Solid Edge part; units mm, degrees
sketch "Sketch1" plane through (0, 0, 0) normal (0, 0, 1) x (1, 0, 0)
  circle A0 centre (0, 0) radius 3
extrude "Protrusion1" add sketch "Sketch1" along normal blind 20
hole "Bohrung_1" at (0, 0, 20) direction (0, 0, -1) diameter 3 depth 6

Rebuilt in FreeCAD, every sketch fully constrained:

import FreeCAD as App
import Part
import Sketcher

doc = App.newDocument("Part")
body = doc.addObject("PartDesign::Body", "Body")

# Sketch on XY plane
sketch1 = body.newObject("Sketcher::SketchObject", "Sketch")
sketch1.AttachmentSupport = (doc.getObject("XY_Plane"), [""])
sketch1.MapMode = "FlatFace"
sketch1.addGeometry(Part.Circle(App.Vector(0, 0, 0), App.Vector(0, 0, 1), 3), False)
sketch1.addConstraint([
    Sketcher.Constraint("Coincident", 0, 3, -1, 1),
    Sketcher.Constraint("Diameter", 0, 6.0),
])
pad1 = body.newObject("PartDesign::Pad", "Pad")
pad1.Profile = sketch1
pad1.Length = 20

# Sketch on XY plane
sketch2 = body.newObject("Sketcher::SketchObject", "Sketch001")
sketch2.AttachmentSupport = (doc.getObject("XY_Plane"), [""])
sketch2.MapMode = "FlatFace"
sketch2.AttachmentOffset = App.Placement(App.Vector(0, 0, 20), App.Rotation())
sketch2.addGeometry(Part.Circle(App.Vector(0, 0, 0), App.Vector(0, 0, 1), 1.5), False)
sketch2.addConstraint([
    Sketcher.Constraint("Coincident", 0, 3, -1, 1),
    Sketcher.Constraint("Diameter", 0, 3.0),
])
doc.recompute()
hole = body.newObject("PartDesign::Hole", "Hole")
hole.Profile = sketch2
hole.ThreadType = "None"
hole.Diameter = 3
hole.DepthType = "Dimension"
hole.Depth = 6
hole.DrillPoint = "Flat"

doc.recompute()
